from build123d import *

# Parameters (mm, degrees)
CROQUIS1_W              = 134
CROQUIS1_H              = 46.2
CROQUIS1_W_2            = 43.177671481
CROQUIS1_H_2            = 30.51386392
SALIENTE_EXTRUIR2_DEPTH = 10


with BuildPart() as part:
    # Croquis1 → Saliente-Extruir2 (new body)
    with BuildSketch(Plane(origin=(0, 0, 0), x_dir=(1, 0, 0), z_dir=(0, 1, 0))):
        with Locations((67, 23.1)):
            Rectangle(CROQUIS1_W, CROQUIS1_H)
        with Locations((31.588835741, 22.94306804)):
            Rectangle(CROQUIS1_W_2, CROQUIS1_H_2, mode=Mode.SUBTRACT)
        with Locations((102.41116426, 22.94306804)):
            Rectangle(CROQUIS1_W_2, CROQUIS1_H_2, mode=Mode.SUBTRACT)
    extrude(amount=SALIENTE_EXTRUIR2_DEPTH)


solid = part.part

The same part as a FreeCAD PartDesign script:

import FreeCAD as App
import Part
import Sketcher
from FreeCAD import Vector
Q = App.Units.Quantity


def add_polygon(sketch, points):
    """Adds a closed chain of lines whose ends are joined by coincident constraints."""
    first, n = sketch.GeometryCount, len(points)
    for a, b in zip(points, points[1:] + points[:1]):
        sketch.addGeometry(Part.LineSegment(App.Vector(*a, 0), App.Vector(*b, 0)), False)
    for i in range(n):
        sketch.addConstraint(Sketcher.Constraint("Coincident", first + i, 2, first + (i + 1) % n, 1))

doc = App.newDocument("Part")
params = doc.addObject("Spreadsheet::Sheet", "Params")
for row, (alias, value) in enumerate([
    ("sketch1_width", "134 mm"),
    ("sketch1_height", "46.2 mm"),
    ("pad1_length", "10 mm"),
], start=1):
    params.set(f"A{row}", alias)
    params.set(f"B{row}", "=" + value)
    params.setAlias(f"B{row}", alias)

body = doc.addObject("PartDesign::Body", "Body")

# Sketch on XZ plane
sketch1 = body.newObject("Sketcher::SketchObject", "Sketch")
sketch1.AttachmentSupport = (doc.getObject("XZ_Plane"), [""])
sketch1.MapMode = "FlatFace"
add_polygon(sketch1, [(0, -46), (0, 0), (134, 0), (134, -46)])  # lines 0-3
add_polygon(sketch1, [(53, -8), (10, -8), (10, -38), (53, -38)])  # lines 4-7
add_polygon(sketch1, [(124, -8), (81, -8), (81, -38), (124, -38)])  # lines 8-11
sketch1.addConstraint([
    Sketcher.Constraint("Vertical", 0),
    Sketcher.Constraint("Horizontal", 1),
    Sketcher.Constraint("Vertical", 2),
    Sketcher.Constraint("Horizontal", 3),
    Sketcher.Constraint("Horizontal", 4),
    Sketcher.Constraint("Vertical", 5),
    Sketcher.Constraint("Horizontal", 6),
    Sketcher.Constraint("Vertical", 7),
    Sketcher.Constraint("Horizontal", 8),
    Sketcher.Constraint("Vertical", 9),
    Sketcher.Constraint("Horizontal", 10),
    Sketcher.Constraint("Vertical", 11),
    Sketcher.Constraint("Coincident", 0, 2, -1, 1),
    Sketcher.Constraint("Horizontal", 7, 2, 8, 2),
    Sketcher.Constraint("Horizontal", 6, 2, 9, 2),
    Sketcher.Constraint("Equal", 6, 8),
    Sketcher.Constraint("DistanceX", 1, 1, 1, 2, Q("134 mm")),
    Sketcher.Constraint("DistanceY", 0, 1, 0, 2, Q("46.2 mm")),
    Sketcher.Constraint("DistanceX", -1, 1, 4, 2, Q("10 mm")),
    Sketcher.Constraint("DistanceX", -1, 1, 10, 2, Q("124 mm")),
    Sketcher.Constraint("DistanceY", 3, 2, 5, 2, Q("8 mm")),
    Sketcher.Constraint("DistanceX", 4, 2, 4, 1, Q("43.177671 mm")),
    Sketcher.Constraint("DistanceY", 5, 2, 5, 1, Q("30.513864 mm")),
])
sketch1.setExpression("Constraints[28]", "Params.sketch1_width")
sketch1.setExpression("Constraints[29]", "Params.sketch1_height")
pad1 = body.newObject("PartDesign::Pad", "Pad")
pad1.Profile = sketch1
pad1.setExpression("Length", "Params.pad1_length")
pad1.Reversed = True

doc.recompute()
